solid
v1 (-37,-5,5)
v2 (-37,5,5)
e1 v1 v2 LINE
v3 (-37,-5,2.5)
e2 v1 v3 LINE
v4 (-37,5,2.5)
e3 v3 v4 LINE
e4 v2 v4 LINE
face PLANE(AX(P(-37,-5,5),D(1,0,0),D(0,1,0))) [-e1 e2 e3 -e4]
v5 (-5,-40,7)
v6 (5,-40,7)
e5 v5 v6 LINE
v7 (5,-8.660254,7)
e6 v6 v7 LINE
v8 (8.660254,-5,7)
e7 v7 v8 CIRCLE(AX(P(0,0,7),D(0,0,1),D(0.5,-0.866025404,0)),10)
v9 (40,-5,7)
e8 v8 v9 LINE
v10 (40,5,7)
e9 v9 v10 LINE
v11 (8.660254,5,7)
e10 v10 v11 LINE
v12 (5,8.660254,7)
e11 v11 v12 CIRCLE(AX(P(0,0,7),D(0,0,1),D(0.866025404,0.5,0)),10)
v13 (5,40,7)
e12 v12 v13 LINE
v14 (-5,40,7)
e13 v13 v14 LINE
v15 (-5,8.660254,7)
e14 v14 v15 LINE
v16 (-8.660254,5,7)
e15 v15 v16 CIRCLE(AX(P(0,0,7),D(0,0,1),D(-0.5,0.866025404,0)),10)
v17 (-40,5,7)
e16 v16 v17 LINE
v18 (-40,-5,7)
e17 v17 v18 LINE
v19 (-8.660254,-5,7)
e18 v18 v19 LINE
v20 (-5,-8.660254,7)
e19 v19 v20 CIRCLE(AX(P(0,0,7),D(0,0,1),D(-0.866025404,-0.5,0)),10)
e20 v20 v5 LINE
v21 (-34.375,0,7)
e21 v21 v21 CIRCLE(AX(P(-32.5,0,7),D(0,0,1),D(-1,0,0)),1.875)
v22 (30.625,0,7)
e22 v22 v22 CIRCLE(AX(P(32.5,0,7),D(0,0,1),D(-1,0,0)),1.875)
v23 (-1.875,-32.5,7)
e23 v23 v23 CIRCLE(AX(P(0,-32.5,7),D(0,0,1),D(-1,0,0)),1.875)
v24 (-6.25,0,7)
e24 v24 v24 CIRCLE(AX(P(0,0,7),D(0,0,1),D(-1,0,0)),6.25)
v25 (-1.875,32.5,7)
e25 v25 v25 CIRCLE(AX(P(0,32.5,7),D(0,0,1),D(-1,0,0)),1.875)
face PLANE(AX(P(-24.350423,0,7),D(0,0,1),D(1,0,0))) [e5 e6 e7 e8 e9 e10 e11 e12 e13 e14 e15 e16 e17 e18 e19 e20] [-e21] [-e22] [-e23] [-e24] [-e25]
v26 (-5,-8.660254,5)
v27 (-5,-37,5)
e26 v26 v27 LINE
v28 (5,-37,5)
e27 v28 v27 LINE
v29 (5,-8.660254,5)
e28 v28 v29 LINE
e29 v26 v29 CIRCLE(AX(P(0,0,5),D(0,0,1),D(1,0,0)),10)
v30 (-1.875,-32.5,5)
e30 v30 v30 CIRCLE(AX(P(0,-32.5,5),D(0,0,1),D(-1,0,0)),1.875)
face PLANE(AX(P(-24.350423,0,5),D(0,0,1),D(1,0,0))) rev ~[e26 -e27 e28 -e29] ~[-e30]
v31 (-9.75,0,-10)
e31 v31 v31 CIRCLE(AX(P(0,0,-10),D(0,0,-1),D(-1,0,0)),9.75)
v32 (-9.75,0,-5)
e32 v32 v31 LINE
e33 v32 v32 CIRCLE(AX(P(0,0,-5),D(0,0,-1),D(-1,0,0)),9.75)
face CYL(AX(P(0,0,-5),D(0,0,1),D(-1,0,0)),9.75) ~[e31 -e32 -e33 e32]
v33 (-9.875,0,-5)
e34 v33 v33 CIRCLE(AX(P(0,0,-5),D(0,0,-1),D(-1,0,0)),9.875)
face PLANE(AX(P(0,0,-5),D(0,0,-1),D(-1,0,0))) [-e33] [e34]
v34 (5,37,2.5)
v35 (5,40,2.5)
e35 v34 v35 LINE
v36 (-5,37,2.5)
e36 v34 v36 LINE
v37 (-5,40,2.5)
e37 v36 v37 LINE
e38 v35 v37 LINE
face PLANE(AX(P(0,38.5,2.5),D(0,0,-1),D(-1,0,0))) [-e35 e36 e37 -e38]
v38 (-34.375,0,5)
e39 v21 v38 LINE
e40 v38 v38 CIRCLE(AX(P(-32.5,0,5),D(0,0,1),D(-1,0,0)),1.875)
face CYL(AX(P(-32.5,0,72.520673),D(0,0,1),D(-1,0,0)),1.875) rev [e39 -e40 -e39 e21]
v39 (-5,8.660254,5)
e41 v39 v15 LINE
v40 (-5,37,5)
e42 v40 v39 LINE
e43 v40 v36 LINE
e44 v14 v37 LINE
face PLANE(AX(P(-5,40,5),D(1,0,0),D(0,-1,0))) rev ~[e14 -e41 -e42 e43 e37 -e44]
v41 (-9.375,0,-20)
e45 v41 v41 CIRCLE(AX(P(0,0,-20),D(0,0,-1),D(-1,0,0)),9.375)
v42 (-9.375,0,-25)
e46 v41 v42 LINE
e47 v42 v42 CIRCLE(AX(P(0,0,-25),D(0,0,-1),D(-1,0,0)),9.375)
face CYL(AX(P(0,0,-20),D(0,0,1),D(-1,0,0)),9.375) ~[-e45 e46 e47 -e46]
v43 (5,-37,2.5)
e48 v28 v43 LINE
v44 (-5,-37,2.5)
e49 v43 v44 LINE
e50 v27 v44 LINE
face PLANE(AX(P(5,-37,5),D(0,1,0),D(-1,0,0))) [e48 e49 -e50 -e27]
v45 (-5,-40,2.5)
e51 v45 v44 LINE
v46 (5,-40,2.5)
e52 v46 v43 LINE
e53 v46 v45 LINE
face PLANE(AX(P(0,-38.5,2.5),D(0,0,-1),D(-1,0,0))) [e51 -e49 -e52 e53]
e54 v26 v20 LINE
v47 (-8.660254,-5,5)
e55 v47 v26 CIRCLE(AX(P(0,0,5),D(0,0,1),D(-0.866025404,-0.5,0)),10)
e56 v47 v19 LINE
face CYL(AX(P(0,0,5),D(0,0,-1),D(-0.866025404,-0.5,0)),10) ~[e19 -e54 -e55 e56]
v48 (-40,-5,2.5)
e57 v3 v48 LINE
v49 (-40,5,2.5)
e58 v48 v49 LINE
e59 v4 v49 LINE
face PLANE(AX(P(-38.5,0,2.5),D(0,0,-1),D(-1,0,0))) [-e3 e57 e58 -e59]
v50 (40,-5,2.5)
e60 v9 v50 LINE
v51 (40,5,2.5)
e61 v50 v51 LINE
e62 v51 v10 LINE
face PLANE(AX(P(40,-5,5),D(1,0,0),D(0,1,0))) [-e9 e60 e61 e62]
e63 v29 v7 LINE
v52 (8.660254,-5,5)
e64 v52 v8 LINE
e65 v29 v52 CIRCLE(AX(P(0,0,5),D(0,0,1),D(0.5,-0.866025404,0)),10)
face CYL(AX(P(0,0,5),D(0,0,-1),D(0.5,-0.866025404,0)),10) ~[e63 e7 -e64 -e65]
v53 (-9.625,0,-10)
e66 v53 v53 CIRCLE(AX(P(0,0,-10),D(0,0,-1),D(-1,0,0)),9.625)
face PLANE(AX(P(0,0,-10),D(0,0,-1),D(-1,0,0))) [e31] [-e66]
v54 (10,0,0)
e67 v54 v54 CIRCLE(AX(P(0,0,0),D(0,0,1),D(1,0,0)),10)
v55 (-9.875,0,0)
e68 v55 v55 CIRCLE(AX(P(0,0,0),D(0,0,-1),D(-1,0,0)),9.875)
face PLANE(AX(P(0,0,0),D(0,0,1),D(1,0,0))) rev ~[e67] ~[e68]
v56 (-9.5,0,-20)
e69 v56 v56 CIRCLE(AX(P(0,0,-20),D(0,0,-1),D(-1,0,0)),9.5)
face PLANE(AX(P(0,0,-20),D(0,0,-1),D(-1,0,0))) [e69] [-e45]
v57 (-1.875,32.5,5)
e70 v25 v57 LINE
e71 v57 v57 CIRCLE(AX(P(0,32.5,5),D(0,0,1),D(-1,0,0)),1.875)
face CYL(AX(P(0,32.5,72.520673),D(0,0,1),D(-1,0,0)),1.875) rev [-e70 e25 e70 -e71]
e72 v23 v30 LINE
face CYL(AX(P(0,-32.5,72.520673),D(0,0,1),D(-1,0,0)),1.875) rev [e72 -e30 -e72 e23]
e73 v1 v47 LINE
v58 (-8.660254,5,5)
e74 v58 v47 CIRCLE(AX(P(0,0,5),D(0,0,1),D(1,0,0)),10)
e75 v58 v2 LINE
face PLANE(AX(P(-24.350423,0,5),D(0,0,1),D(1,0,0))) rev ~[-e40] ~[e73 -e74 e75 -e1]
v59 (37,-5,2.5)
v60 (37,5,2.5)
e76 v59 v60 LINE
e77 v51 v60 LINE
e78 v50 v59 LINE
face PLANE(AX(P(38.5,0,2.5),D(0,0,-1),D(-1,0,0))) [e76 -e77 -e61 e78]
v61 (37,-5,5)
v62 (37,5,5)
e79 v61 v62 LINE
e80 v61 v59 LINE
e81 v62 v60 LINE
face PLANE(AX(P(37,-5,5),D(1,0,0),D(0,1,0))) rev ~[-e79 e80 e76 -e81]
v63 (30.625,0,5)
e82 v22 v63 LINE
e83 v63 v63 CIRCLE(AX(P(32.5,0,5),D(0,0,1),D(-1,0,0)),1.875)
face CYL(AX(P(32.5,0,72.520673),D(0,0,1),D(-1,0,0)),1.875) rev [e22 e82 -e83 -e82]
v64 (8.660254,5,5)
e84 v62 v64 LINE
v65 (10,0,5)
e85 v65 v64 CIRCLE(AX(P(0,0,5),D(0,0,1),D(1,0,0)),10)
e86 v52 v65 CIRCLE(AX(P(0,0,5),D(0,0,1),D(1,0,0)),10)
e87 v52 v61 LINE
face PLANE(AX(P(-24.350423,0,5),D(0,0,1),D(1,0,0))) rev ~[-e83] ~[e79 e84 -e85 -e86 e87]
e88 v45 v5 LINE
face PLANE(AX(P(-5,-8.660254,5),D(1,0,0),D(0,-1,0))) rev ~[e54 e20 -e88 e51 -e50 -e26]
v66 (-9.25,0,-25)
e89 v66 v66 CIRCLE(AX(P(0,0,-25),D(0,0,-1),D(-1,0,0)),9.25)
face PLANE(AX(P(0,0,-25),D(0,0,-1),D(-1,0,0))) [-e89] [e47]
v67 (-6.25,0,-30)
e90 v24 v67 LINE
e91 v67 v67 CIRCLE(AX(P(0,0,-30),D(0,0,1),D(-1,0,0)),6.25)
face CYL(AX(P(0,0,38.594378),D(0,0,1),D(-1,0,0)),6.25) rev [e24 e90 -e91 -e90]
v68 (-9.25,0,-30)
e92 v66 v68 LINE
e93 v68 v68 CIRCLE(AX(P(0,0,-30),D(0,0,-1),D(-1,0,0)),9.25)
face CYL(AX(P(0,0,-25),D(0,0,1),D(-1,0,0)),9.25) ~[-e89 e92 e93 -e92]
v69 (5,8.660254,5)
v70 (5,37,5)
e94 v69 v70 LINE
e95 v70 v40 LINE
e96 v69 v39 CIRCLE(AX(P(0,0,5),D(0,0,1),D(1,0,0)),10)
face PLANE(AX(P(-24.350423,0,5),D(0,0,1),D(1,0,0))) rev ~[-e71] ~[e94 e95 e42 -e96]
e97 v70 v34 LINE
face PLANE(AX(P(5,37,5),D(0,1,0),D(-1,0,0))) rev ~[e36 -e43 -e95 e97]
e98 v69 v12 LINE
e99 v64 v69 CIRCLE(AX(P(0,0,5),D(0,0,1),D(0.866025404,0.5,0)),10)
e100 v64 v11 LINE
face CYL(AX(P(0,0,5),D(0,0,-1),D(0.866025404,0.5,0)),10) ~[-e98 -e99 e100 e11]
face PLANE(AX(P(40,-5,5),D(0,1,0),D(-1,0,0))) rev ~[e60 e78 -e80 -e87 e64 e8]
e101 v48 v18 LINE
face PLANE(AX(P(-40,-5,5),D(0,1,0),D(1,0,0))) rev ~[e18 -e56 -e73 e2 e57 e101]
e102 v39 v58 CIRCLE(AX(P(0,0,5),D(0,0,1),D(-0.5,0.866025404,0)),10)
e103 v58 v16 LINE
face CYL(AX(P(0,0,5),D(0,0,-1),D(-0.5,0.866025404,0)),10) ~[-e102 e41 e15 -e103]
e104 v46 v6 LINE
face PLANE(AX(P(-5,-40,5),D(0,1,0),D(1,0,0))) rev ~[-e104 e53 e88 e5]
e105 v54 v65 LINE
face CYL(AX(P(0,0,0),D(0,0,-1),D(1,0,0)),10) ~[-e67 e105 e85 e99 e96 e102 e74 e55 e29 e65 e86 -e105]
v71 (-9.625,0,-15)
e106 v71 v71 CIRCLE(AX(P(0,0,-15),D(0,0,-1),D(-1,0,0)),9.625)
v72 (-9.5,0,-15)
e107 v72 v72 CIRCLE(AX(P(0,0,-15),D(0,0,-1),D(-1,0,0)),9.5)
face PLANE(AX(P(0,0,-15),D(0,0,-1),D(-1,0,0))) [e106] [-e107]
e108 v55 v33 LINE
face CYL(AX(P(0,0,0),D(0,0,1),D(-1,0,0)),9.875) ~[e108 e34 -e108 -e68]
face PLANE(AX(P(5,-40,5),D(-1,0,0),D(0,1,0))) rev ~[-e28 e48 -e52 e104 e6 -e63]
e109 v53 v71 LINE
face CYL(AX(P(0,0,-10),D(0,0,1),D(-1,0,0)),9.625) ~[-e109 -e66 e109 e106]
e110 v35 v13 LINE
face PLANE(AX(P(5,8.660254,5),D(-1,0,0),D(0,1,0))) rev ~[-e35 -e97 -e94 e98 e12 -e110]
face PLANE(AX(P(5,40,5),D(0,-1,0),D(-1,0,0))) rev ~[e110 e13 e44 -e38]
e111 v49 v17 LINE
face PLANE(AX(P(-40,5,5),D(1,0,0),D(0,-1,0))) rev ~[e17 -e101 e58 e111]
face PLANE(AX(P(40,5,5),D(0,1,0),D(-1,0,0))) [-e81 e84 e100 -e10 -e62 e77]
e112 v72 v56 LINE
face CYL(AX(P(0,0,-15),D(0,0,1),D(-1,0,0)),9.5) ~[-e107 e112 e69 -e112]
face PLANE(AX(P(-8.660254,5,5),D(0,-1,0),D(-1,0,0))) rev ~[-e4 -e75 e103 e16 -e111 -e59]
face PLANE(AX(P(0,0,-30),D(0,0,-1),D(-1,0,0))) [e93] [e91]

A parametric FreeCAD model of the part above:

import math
import FreeCAD as App
import Part
import Sketcher


def add_polygon(sketch, points):
    """Adds a closed chain of lines whose ends are joined by coincident constraints."""
    first, n = sketch.GeometryCount, len(points)
    for a, b in zip(points, points[1:] + points[:1]):
        sketch.addGeometry(Part.LineSegment(App.Vector(*a, 0), App.Vector(*b, 0)), False)
    for i in range(n):
        sketch.addConstraint(Sketcher.Constraint("Coincident", first + i, 2, first + (i + 1) % n, 1))

doc = App.newDocument("Part")
params = doc.addObject("Spreadsheet::Sheet", "Params")
for row, (alias, value) in enumerate([
    ("sketch1_diameter", "20 mm"),
    ("pad1_length", "5 mm"),
    ("sketch2_radius", "10 mm"),
    ("sketch2_width", "10 mm"),
    ("pad2_length", "2 mm"),
    ("sketch3_diameter", "19.75 mm"),
    ("pad3_length", "5 mm"),
    ("sketch4_diameter", "19.5 mm"),
    ("pad4_length", "5 mm"),
    ("sketch5_diameter", "19.25 mm"),
    ("pad5_length", "5 mm"),
    ("sketch6_diameter", "19 mm"),
    ("pad6_length", "5 mm"),
    ("sketch7_diameter", "18.75 mm"),
    ("pad7_length", "5 mm"),
    ("sketch8_diameter", "18.5 mm"),
    ("pad8_length", "5 mm"),
    ("sketch9_width", "3 mm"),
    ("sketch9_width2", "10 mm"),
    ("pad9_length", "2.5 mm"),
    ("sketch10_diameter", "3.75 mm"),
    ("sketch11_diameter", "12.5 mm"),
], start=1):
    params.set(f"A{row}", alias)
    params.set(f"B{row}", "=" + value)
    params.setAlias(f"B{row}", alias)

body = doc.addObject("PartDesign::Body", "Body")

# Sketch on XY plane
sketch1 = body.newObject("Sketcher::SketchObject", "Sketch")
sketch1.AttachmentSupport = (doc.getObject("XY_Plane"), [""])
sketch1.MapMode = "FlatFace"
sketch1.addGeometry(Part.Circle(App.Vector(0, 0, 0), App.Vector(0, 0, 1), 10), False)
sketch1.addConstraint([
    Sketcher.Constraint("Coincident", 0, 3, -1, 1),
    Sketcher.Constraint("Diameter", 0, 20.0),
])
sketch1.setExpression("Constraints[1]", "Params.sketch1_diameter")
pad1 = body.newObject("PartDesign::Pad", "Pad")
pad1.Profile = sketch1
pad1.setExpression("Length", "Params.pad1_length")

# Sketch on XY plane
sketch2 = body.newObject("Sketcher::SketchObject", "Sketch001")
sketch2.AttachmentSupport = (doc.getObject("XY_Plane"), [""])
sketch2.MapMode = "FlatFace"
sketch2.AttachmentOffset = App.Placement(App.Vector(0, 0, 5), App.Rotation())
sketch2.addGeometry([
    Part.LineSegment(App.Vector(-5, 40, 0), App.Vector(-5, 9, 0)),  # 0
    Part.ArcOfCircle(Part.Circle(App.Vector(0, 0, 0), App.Vector(0, 0, 1), 10), math.radians(120), math.radians(150)),  # 1
    Part.LineSegment(App.Vector(-9, 5, 0), App.Vector(-40, 5, 0)),  # 2
    Part.LineSegment(App.Vector(-40, 5, 0), App.Vector(-40, -5, 0)),  # 3
    Part.LineSegment(App.Vector(-40, -5, 0), App.Vector(-9, -5, 0)),  # 4
    Part.ArcOfCircle(Part.Circle(App.Vector(0, 0, 0), App.Vector(0, 0, 1), 10), math.radians(-150), math.radians(-120)),  # 5
    Part.LineSegment(App.Vector(-5, -9, 0), App.Vector(-5, -40, 0)),  # 6
    Part.LineSegment(App.Vector(-5, -40, 0), App.Vector(5, -40, 0)),  # 7
    Part.LineSegment(App.Vector(5, -40, 0), App.Vector(5, -9, 0)),  # 8
    Part.ArcOfCircle(Part.Circle(App.Vector(0, 0, 0), App.Vector(0, 0, 1), 10), math.radians(-60), math.radians(-30)),  # 9
    Part.LineSegment(App.Vector(9, -5, 0), App.Vector(40, -5, 0)),  # 10
    Part.LineSegment(App.Vector(40, -5, 0), App.Vector(40, 5, 0)),  # 11
    Part.LineSegment(App.Vector(40, 5, 0), App.Vector(9, 5, 0)),  # 12
    Part.ArcOfCircle(Part.Circle(App.Vector(0, 0, 0), App.Vector(0, 0, 1), 10), math.radians(30), math.radians(60)),  # 13
    Part.LineSegment(App.Vector(5, 9, 0), App.Vector(5, 40, 0)),  # 14
    Part.LineSegment(App.Vector(5, 40, 0), App.Vector(-5, 40, 0)),  # 15
], False)
sketch2.addConstraint([
    Sketcher.Constraint("Coincident", 0, 2, 1, 1),
    Sketcher.Constraint("Coincident", 1, 2, 2, 1),
    Sketcher.Constraint("Coincident", 2, 2, 3, 1),
    Sketcher.Constraint("Coincident", 3, 2, 4, 1),
    Sketcher.Constraint("Coincident", 4, 2, 5, 1),
    Sketcher.Constraint("Coincident", 5, 2, 6, 1),
    Sketcher.Constraint("Coincident", 6, 2, 7, 1),
    Sketcher.Constraint("Coincident", 7, 2, 8, 1),
    Sketcher.Constraint("Coincident", 8, 2, 9, 1),
    Sketcher.Constraint("Coincident", 9, 2, 10, 1),
    Sketcher.Constraint("Coincident", 10, 2, 11, 1),
    Sketcher.Constraint("Coincident", 11, 2, 12, 1),
    Sketcher.Constraint("Coincident", 12, 2, 13, 1),
    Sketcher.Constraint("Coincident", 13, 2, 14, 1),
    Sketcher.Constraint("Coincident", 14, 2, 15, 1),
    Sketcher.Constraint("Coincident", 15, 2, 0, 1),
    Sketcher.Constraint("Vertical", 0),
    Sketcher.Constraint("Horizontal", 2),
    Sketcher.Constraint("Vertical", 3),
    Sketcher.Constraint("Horizontal", 4),
    Sketcher.Constraint("Vertical", 6),
    Sketcher.Constraint("Horizontal", 7),
    Sketcher.Constraint("Vertical", 8),
    Sketcher.Constraint("Horizontal", 10),
    Sketcher.Constraint("Vertical", 11),
    Sketcher.Constraint("Horizontal", 12),
    Sketcher.Constraint("Vertical", 14),
    Sketcher.Constraint("Horizontal", 15),
    Sketcher.Constraint("Coincident", 1, 3, -1, 1),
    Sketcher.Constraint("Coincident", 5, 3, -1, 1),
    Sketcher.Constraint("Coincident", 9, 3, -1, 1),
    Sketcher.Constraint("Coincident", 13, 3, -1, 1),
    Sketcher.Constraint("Equal", 1, 5),
    Sketcher.Constraint("Equal", 5, 9),
    Sketcher.Constraint("Equal", 9, 13),
    Sketcher.Constraint("Symmetric", 2, 2, 10, 2, -1, 1),
    Sketcher.Constraint("Symmetric", 6, 2, 14, 2, -1, 1),
    Sketcher.Constraint("Horizontal", 5, 2, 8, 2),
    Sketcher.Constraint("Horizontal", 4, 2, 9, 2),
    Sketcher.Constraint("Horizontal", 2, 2, 11, 2),
    Sketcher.Constraint("Horizontal", 0, 2, 13, 2),
    Sketcher.Constraint("Equal", 12, 0),
    Sketcher.Constraint("Equal", 15, 3),
    Sketcher.Constraint("Radius", 1, 10.0),
    Sketcher.Constraint("DistanceX", 7, 1, 7, 2, 10.0),
    Sketcher.Constraint("DistanceX", 2, 2, -1, 1, 40.0),
])
sketch2.setExpression("Constraints[43]", "Params.sketch2_radius")
sketch2.setExpression("Constraints[44]", "Params.sketch2_width")
pad2 = body.newObject("PartDesign::Pad", "Pad001")
pad2.Profile = sketch2
pad2.setExpression("Length", "Params.pad2_length")

# Sketch on XY plane
sketch3 = body.newObject("Sketcher::SketchObject", "Sketch002")
sketch3.AttachmentSupport = (doc.getObject("XY_Plane"), [""])
sketch3.MapMode = "FlatFace"
sketch3.addGeometry(Part.Circle(App.Vector(0, 0, 0), App.Vector(0, 0, 1), 10), False)
sketch3.addConstraint([
    Sketcher.Constraint("Coincident", 0, 3, -1, 1),
    Sketcher.Constraint("Diameter", 0, 19.75),
])
sketch3.setExpression("Constraints[1]", "Params.sketch3_diameter")
pad3 = body.newObject("PartDesign::Pad", "Pad002")
pad3.Profile = sketch3
pad3.setExpression("Length", "Params.pad3_length")
pad3.Reversed = True

# Sketch on XY plane
sketch4 = body.newObject("Sketcher::SketchObject", "Sketch003")
sketch4.AttachmentSupport = (doc.getObject("XY_Plane"), [""])
sketch4.MapMode = "FlatFace"
sketch4.AttachmentOffset = App.Placement(App.Vector(0, 0, -5), App.Rotation())
sketch4.addGeometry(Part.Circle(App.Vector(0, 0, 0), App.Vector(0, 0, 1), 10), False)
sketch4.addConstraint([
    Sketcher.Constraint("Coincident", 0, 3, -1, 1),
    Sketcher.Constraint("Diameter", 0, 19.5),
])
sketch4.setExpression("Constraints[1]", "Params.sketch4_diameter")
pad4 = body.newObject("PartDesign::Pad", "Pad003")
pad4.Profile = sketch4
pad4.setExpression("Length", "Params.pad4_length")
pad4.Reversed = True

# Sketch on XY plane
sketch5 = body.newObject("Sketcher::SketchObject", "Sketch004")
sketch5.AttachmentSupport = (doc.getObject("XY_Plane"), [""])
sketch5.MapMode = "FlatFace"
sketch5.AttachmentOffset = App.Placement(App.Vector(0, 0, -10), App.Rotation())
sketch5.addGeometry(Part.Circle(App.Vector(0, 0, 0), App.Vector(0, 0, 1), 10), False)
sketch5.addConstraint([
    Sketcher.Constraint("Coincident", 0, 3, -1, 1),
    Sketcher.Constraint("Diameter", 0, 19.25),
])
sketch5.setExpression("Constraints[1]", "Params.sketch5_diameter")
pad5 = body.newObject("PartDesign::Pad", "Pad004")
pad5.Profile = sketch5
pad5.setExpression("Length", "Params.pad5_length")
pad5.Reversed = True

# Sketch on XY plane
sketch6 = body.newObject("Sketcher::SketchObject", "Sketch005")
sketch6.AttachmentSupport = (doc.getObject("XY_Plane"), [""])
sketch6.MapMode = "FlatFace"
sketch6.AttachmentOffset = App.Placement(App.Vector(0, 0, -15), App.Rotation())
sketch6.addGeometry(Part.Circle(App.Vector(0, 0, 0), App.Vector(0, 0, 1), 10), False)
sketch6.addConstraint([
    Sketcher.Constraint("Coincident", 0, 3, -1, 1),
    Sketcher.Constraint("Diameter", 0, 19.0),
])
sketch6.setExpression("Constraints[1]", "Params.sketch6_diameter")
pad6 = body.newObject("PartDesign::Pad", "Pad005")
pad6.Profile = sketch6
pad6.setExpression("Length", "Params.pad6_length")
pad6.Reversed = True

# Sketch on XY plane
sketch7 = body.newObject("Sketcher::SketchObject", "Sketch006")
sketch7.AttachmentSupport = (doc.getObject("XY_Plane"), [""])
sketch7.MapMode = "FlatFace"
sketch7.AttachmentOffset = App.Placement(App.Vector(0, 0, -20), App.Rotation())
sketch7.addGeometry(Part.Circle(App.Vector(0, 0, 0), App.Vector(0, 0, 1), 9), False)
sketch7.addConstraint([
    Sketcher.Constraint("Coincident", 0, 3, -1, 1),
    Sketcher.Constraint("Diameter", 0, 18.75),
])
sketch7.setExpression("Constraints[1]", "Params.sketch7_diameter")
pad7 = body.newObject("PartDesign::Pad", "Pad006")
pad7.Profile = sketch7
pad7.setExpression("Length", "Params.pad7_length")
pad7.Reversed = True

# Sketch on XY plane
sketch8 = body.newObject("Sketcher::SketchObject", "Sketch007")
sketch8.AttachmentSupport = (doc.getObject("XY_Plane"), [""])
sketch8.MapMode = "FlatFace"
sketch8.AttachmentOffset = App.Placement(App.Vector(0, 0, -25), App.Rotation())
sketch8.addGeometry(Part.Circle(App.Vector(0, 0, 0), App.Vector(0, 0, 1), 9), False)
sketch8.addConstraint([
    Sketcher.Constraint("Coincident", 0, 3, -1, 1),
    Sketcher.Constraint("Diameter", 0, 18.5),
])
sketch8.setExpression("Constraints[1]", "Params.sketch8_diameter")
pad8 = body.newObject("PartDesign::Pad", "Pad007")
pad8.Profile = sketch8
pad8.setExpression("Length", "Params.pad8_length")
pad8.Reversed = True

# Sketch on XY plane
sketch9 = body.newObject("Sketcher::SketchObject", "Sketch008")
sketch9.AttachmentSupport = (doc.getObject("XY_Plane"), [""])
sketch9.MapMode = "FlatFace"
sketch9.AttachmentOffset = App.Placement(App.Vector(0, 0, 5), App.Rotation())
add_polygon(sketch9, [(40, 5), (40, -5), (37, -5), (37, 5)])  # lines 0-3
add_polygon(sketch9, [(5, 40), (5, 37), (-5, 37), (-5, 40)])  # lines 4-7
add_polygon(sketch9, [(-37, 5), (-37, -5), (-40, -5), (-40, 5)])  # lines 8-11
add_polygon(sketch9, [(5, -37), (5, -40), (-5, -40), (-5, -37)])  # lines 12-15
sketch9.addConstraint([
    Sketcher.Constraint("Vertical", 0),
    Sketcher.Constraint("Horizontal", 1),
    Sketcher.Constraint("Vertical", 2),
    Sketcher.Constraint("Horizontal", 3),
    Sketcher.Constraint("Vertical", 4),
    Sketcher.Constraint("Horizontal", 5),
    Sketcher.Constraint("Vertical", 6),
    Sketcher.Constraint("Horizontal", 7),
    Sketcher.Constraint("Vertical", 8),
    Sketcher.Constraint("Horizontal", 9),
    Sketcher.Constraint("Vertical", 10),
    Sketcher.Constraint("Horizontal", 11),
    Sketcher.Constraint("Vertical", 12),
    Sketcher.Constraint("Horizontal", 13),
    Sketcher.Constraint("Vertical", 14),
    Sketcher.Constraint("Horizontal", 15),
    Sketcher.Constraint("Symmetric", 2, 2, 8, 2, -1, 1),
    Sketcher.Constraint("Symmetric", 0, 2, 10, 2, -1, 1),
    Sketcher.Constraint("Symmetric", 6, 2, 12, 2, -1, 1),
    Sketcher.Constraint("Symmetric", 4, 2, 14, 2, -1, 1),
    Sketcher.Constraint("Horizontal", 1, 2, 8, 2),
    Sketcher.Constraint("Vertical", 7, 2, 12, 2),
    Sketcher.Constraint("Equal", 15, 0),
    Sketcher.Constraint("Equal", 11, 4),
    Sketcher.Constraint("DistanceX", 1, 2, 1, 1, 3.0),
    Sketcher.Constraint("DistanceX", 5, 2, 5, 1, 10.0),
    Sketcher.Constraint("DistanceX", -1, 1, 0, 2, 40.0),
    Sketcher.Constraint("DistanceY", -1, 1, 4, 2, 37.0),
])
sketch9.setExpression("Constraints[40]", "Params.sketch9_width")
sketch9.setExpression("Constraints[41]", "Params.sketch9_width2")
pad9 = body.newObject("PartDesign::Pad", "Pad008")
pad9.Profile = sketch9
pad9.setExpression("Length", "Params.pad9_length")
pad9.Reversed = True

# Sketch on XY plane
sketch10 = body.newObject("Sketcher::SketchObject", "Sketch009")
sketch10.AttachmentSupport = (doc.getObject("XY_Plane"), [""])
sketch10.MapMode = "FlatFace"
sketch10.AttachmentOffset = App.Placement(App.Vector(0, 0, 5), App.Rotation())
sketch10.addGeometry([
    Part.Circle(App.Vector(32.5, 0, 0), App.Vector(0, 0, 1), 1.9),
    Part.Circle(App.Vector(0, 32.5, 0), App.Vector(0, 0, 1), 1.9),
    Part.Circle(App.Vector(-32.5, 0, 0), App.Vector(0, 0, 1), 1.9),
    Part.Circle(App.Vector(0, -32.5, 0), App.Vector(0, 0, 1), 1.9),
], False)
sketch10.addConstraint([
    Sketcher.Constraint("Equal", 0, 1),
    Sketcher.Constraint("Equal", 1, 2),
    Sketcher.Constraint("Equal", 2, 3),
    Sketcher.Constraint("Symmetric", 0, 3, 2, 3, -1, 1),
    Sketcher.Constraint("Symmetric", 1, 3, 3, 3, -1, 1),
    Sketcher.Constraint("PointOnObject", 0, 3, -1),
    Sketcher.Constraint("PointOnObject", 1, 3, -2),
    Sketcher.Constraint("Diameter", 0, 3.75),
    Sketcher.Constraint("DistanceX", 2, 3, 0, 3, 65.0),
    Sketcher.Constraint("DistanceY", 3, 3, 1, 3, 65.0),
])
sketch10.setExpression("Constraints[7]", "Params.sketch10_diameter")
pocket1 = body.newObject("PartDesign::Pocket", "Pocket")
pocket1.Profile = sketch10
pocket1.Type = "ThroughAll"
pocket1.Midplane = True

# Sketch on XY plane
sketch11 = body.newObject("Sketcher::SketchObject", "Sketch010")
sketch11.AttachmentSupport = (doc.getObject("XY_Plane"), [""])
sketch11.MapMode = "FlatFace"
sketch11.AttachmentOffset = App.Placement(App.Vector(0, 0, -30), App.Rotation())
sketch11.addGeometry(Part.Circle(App.Vector(0, 0, 0), App.Vector(0, 0, 1), 6), False)
sketch11.addConstraint([
    Sketcher.Constraint("Coincident", 0, 3, -1, 1),
    Sketcher.Constraint("Diameter", 0, 12.5),
])
sketch11.setExpression("Constraints[1]", "Params.sketch11_diameter")
pocket2 = body.newObject("PartDesign::Pocket", "Pocket001")
pocket2.Profile = sketch11
pocket2.Type = "ThroughAll"
pocket2.Midplane = True

doc.recompute()
